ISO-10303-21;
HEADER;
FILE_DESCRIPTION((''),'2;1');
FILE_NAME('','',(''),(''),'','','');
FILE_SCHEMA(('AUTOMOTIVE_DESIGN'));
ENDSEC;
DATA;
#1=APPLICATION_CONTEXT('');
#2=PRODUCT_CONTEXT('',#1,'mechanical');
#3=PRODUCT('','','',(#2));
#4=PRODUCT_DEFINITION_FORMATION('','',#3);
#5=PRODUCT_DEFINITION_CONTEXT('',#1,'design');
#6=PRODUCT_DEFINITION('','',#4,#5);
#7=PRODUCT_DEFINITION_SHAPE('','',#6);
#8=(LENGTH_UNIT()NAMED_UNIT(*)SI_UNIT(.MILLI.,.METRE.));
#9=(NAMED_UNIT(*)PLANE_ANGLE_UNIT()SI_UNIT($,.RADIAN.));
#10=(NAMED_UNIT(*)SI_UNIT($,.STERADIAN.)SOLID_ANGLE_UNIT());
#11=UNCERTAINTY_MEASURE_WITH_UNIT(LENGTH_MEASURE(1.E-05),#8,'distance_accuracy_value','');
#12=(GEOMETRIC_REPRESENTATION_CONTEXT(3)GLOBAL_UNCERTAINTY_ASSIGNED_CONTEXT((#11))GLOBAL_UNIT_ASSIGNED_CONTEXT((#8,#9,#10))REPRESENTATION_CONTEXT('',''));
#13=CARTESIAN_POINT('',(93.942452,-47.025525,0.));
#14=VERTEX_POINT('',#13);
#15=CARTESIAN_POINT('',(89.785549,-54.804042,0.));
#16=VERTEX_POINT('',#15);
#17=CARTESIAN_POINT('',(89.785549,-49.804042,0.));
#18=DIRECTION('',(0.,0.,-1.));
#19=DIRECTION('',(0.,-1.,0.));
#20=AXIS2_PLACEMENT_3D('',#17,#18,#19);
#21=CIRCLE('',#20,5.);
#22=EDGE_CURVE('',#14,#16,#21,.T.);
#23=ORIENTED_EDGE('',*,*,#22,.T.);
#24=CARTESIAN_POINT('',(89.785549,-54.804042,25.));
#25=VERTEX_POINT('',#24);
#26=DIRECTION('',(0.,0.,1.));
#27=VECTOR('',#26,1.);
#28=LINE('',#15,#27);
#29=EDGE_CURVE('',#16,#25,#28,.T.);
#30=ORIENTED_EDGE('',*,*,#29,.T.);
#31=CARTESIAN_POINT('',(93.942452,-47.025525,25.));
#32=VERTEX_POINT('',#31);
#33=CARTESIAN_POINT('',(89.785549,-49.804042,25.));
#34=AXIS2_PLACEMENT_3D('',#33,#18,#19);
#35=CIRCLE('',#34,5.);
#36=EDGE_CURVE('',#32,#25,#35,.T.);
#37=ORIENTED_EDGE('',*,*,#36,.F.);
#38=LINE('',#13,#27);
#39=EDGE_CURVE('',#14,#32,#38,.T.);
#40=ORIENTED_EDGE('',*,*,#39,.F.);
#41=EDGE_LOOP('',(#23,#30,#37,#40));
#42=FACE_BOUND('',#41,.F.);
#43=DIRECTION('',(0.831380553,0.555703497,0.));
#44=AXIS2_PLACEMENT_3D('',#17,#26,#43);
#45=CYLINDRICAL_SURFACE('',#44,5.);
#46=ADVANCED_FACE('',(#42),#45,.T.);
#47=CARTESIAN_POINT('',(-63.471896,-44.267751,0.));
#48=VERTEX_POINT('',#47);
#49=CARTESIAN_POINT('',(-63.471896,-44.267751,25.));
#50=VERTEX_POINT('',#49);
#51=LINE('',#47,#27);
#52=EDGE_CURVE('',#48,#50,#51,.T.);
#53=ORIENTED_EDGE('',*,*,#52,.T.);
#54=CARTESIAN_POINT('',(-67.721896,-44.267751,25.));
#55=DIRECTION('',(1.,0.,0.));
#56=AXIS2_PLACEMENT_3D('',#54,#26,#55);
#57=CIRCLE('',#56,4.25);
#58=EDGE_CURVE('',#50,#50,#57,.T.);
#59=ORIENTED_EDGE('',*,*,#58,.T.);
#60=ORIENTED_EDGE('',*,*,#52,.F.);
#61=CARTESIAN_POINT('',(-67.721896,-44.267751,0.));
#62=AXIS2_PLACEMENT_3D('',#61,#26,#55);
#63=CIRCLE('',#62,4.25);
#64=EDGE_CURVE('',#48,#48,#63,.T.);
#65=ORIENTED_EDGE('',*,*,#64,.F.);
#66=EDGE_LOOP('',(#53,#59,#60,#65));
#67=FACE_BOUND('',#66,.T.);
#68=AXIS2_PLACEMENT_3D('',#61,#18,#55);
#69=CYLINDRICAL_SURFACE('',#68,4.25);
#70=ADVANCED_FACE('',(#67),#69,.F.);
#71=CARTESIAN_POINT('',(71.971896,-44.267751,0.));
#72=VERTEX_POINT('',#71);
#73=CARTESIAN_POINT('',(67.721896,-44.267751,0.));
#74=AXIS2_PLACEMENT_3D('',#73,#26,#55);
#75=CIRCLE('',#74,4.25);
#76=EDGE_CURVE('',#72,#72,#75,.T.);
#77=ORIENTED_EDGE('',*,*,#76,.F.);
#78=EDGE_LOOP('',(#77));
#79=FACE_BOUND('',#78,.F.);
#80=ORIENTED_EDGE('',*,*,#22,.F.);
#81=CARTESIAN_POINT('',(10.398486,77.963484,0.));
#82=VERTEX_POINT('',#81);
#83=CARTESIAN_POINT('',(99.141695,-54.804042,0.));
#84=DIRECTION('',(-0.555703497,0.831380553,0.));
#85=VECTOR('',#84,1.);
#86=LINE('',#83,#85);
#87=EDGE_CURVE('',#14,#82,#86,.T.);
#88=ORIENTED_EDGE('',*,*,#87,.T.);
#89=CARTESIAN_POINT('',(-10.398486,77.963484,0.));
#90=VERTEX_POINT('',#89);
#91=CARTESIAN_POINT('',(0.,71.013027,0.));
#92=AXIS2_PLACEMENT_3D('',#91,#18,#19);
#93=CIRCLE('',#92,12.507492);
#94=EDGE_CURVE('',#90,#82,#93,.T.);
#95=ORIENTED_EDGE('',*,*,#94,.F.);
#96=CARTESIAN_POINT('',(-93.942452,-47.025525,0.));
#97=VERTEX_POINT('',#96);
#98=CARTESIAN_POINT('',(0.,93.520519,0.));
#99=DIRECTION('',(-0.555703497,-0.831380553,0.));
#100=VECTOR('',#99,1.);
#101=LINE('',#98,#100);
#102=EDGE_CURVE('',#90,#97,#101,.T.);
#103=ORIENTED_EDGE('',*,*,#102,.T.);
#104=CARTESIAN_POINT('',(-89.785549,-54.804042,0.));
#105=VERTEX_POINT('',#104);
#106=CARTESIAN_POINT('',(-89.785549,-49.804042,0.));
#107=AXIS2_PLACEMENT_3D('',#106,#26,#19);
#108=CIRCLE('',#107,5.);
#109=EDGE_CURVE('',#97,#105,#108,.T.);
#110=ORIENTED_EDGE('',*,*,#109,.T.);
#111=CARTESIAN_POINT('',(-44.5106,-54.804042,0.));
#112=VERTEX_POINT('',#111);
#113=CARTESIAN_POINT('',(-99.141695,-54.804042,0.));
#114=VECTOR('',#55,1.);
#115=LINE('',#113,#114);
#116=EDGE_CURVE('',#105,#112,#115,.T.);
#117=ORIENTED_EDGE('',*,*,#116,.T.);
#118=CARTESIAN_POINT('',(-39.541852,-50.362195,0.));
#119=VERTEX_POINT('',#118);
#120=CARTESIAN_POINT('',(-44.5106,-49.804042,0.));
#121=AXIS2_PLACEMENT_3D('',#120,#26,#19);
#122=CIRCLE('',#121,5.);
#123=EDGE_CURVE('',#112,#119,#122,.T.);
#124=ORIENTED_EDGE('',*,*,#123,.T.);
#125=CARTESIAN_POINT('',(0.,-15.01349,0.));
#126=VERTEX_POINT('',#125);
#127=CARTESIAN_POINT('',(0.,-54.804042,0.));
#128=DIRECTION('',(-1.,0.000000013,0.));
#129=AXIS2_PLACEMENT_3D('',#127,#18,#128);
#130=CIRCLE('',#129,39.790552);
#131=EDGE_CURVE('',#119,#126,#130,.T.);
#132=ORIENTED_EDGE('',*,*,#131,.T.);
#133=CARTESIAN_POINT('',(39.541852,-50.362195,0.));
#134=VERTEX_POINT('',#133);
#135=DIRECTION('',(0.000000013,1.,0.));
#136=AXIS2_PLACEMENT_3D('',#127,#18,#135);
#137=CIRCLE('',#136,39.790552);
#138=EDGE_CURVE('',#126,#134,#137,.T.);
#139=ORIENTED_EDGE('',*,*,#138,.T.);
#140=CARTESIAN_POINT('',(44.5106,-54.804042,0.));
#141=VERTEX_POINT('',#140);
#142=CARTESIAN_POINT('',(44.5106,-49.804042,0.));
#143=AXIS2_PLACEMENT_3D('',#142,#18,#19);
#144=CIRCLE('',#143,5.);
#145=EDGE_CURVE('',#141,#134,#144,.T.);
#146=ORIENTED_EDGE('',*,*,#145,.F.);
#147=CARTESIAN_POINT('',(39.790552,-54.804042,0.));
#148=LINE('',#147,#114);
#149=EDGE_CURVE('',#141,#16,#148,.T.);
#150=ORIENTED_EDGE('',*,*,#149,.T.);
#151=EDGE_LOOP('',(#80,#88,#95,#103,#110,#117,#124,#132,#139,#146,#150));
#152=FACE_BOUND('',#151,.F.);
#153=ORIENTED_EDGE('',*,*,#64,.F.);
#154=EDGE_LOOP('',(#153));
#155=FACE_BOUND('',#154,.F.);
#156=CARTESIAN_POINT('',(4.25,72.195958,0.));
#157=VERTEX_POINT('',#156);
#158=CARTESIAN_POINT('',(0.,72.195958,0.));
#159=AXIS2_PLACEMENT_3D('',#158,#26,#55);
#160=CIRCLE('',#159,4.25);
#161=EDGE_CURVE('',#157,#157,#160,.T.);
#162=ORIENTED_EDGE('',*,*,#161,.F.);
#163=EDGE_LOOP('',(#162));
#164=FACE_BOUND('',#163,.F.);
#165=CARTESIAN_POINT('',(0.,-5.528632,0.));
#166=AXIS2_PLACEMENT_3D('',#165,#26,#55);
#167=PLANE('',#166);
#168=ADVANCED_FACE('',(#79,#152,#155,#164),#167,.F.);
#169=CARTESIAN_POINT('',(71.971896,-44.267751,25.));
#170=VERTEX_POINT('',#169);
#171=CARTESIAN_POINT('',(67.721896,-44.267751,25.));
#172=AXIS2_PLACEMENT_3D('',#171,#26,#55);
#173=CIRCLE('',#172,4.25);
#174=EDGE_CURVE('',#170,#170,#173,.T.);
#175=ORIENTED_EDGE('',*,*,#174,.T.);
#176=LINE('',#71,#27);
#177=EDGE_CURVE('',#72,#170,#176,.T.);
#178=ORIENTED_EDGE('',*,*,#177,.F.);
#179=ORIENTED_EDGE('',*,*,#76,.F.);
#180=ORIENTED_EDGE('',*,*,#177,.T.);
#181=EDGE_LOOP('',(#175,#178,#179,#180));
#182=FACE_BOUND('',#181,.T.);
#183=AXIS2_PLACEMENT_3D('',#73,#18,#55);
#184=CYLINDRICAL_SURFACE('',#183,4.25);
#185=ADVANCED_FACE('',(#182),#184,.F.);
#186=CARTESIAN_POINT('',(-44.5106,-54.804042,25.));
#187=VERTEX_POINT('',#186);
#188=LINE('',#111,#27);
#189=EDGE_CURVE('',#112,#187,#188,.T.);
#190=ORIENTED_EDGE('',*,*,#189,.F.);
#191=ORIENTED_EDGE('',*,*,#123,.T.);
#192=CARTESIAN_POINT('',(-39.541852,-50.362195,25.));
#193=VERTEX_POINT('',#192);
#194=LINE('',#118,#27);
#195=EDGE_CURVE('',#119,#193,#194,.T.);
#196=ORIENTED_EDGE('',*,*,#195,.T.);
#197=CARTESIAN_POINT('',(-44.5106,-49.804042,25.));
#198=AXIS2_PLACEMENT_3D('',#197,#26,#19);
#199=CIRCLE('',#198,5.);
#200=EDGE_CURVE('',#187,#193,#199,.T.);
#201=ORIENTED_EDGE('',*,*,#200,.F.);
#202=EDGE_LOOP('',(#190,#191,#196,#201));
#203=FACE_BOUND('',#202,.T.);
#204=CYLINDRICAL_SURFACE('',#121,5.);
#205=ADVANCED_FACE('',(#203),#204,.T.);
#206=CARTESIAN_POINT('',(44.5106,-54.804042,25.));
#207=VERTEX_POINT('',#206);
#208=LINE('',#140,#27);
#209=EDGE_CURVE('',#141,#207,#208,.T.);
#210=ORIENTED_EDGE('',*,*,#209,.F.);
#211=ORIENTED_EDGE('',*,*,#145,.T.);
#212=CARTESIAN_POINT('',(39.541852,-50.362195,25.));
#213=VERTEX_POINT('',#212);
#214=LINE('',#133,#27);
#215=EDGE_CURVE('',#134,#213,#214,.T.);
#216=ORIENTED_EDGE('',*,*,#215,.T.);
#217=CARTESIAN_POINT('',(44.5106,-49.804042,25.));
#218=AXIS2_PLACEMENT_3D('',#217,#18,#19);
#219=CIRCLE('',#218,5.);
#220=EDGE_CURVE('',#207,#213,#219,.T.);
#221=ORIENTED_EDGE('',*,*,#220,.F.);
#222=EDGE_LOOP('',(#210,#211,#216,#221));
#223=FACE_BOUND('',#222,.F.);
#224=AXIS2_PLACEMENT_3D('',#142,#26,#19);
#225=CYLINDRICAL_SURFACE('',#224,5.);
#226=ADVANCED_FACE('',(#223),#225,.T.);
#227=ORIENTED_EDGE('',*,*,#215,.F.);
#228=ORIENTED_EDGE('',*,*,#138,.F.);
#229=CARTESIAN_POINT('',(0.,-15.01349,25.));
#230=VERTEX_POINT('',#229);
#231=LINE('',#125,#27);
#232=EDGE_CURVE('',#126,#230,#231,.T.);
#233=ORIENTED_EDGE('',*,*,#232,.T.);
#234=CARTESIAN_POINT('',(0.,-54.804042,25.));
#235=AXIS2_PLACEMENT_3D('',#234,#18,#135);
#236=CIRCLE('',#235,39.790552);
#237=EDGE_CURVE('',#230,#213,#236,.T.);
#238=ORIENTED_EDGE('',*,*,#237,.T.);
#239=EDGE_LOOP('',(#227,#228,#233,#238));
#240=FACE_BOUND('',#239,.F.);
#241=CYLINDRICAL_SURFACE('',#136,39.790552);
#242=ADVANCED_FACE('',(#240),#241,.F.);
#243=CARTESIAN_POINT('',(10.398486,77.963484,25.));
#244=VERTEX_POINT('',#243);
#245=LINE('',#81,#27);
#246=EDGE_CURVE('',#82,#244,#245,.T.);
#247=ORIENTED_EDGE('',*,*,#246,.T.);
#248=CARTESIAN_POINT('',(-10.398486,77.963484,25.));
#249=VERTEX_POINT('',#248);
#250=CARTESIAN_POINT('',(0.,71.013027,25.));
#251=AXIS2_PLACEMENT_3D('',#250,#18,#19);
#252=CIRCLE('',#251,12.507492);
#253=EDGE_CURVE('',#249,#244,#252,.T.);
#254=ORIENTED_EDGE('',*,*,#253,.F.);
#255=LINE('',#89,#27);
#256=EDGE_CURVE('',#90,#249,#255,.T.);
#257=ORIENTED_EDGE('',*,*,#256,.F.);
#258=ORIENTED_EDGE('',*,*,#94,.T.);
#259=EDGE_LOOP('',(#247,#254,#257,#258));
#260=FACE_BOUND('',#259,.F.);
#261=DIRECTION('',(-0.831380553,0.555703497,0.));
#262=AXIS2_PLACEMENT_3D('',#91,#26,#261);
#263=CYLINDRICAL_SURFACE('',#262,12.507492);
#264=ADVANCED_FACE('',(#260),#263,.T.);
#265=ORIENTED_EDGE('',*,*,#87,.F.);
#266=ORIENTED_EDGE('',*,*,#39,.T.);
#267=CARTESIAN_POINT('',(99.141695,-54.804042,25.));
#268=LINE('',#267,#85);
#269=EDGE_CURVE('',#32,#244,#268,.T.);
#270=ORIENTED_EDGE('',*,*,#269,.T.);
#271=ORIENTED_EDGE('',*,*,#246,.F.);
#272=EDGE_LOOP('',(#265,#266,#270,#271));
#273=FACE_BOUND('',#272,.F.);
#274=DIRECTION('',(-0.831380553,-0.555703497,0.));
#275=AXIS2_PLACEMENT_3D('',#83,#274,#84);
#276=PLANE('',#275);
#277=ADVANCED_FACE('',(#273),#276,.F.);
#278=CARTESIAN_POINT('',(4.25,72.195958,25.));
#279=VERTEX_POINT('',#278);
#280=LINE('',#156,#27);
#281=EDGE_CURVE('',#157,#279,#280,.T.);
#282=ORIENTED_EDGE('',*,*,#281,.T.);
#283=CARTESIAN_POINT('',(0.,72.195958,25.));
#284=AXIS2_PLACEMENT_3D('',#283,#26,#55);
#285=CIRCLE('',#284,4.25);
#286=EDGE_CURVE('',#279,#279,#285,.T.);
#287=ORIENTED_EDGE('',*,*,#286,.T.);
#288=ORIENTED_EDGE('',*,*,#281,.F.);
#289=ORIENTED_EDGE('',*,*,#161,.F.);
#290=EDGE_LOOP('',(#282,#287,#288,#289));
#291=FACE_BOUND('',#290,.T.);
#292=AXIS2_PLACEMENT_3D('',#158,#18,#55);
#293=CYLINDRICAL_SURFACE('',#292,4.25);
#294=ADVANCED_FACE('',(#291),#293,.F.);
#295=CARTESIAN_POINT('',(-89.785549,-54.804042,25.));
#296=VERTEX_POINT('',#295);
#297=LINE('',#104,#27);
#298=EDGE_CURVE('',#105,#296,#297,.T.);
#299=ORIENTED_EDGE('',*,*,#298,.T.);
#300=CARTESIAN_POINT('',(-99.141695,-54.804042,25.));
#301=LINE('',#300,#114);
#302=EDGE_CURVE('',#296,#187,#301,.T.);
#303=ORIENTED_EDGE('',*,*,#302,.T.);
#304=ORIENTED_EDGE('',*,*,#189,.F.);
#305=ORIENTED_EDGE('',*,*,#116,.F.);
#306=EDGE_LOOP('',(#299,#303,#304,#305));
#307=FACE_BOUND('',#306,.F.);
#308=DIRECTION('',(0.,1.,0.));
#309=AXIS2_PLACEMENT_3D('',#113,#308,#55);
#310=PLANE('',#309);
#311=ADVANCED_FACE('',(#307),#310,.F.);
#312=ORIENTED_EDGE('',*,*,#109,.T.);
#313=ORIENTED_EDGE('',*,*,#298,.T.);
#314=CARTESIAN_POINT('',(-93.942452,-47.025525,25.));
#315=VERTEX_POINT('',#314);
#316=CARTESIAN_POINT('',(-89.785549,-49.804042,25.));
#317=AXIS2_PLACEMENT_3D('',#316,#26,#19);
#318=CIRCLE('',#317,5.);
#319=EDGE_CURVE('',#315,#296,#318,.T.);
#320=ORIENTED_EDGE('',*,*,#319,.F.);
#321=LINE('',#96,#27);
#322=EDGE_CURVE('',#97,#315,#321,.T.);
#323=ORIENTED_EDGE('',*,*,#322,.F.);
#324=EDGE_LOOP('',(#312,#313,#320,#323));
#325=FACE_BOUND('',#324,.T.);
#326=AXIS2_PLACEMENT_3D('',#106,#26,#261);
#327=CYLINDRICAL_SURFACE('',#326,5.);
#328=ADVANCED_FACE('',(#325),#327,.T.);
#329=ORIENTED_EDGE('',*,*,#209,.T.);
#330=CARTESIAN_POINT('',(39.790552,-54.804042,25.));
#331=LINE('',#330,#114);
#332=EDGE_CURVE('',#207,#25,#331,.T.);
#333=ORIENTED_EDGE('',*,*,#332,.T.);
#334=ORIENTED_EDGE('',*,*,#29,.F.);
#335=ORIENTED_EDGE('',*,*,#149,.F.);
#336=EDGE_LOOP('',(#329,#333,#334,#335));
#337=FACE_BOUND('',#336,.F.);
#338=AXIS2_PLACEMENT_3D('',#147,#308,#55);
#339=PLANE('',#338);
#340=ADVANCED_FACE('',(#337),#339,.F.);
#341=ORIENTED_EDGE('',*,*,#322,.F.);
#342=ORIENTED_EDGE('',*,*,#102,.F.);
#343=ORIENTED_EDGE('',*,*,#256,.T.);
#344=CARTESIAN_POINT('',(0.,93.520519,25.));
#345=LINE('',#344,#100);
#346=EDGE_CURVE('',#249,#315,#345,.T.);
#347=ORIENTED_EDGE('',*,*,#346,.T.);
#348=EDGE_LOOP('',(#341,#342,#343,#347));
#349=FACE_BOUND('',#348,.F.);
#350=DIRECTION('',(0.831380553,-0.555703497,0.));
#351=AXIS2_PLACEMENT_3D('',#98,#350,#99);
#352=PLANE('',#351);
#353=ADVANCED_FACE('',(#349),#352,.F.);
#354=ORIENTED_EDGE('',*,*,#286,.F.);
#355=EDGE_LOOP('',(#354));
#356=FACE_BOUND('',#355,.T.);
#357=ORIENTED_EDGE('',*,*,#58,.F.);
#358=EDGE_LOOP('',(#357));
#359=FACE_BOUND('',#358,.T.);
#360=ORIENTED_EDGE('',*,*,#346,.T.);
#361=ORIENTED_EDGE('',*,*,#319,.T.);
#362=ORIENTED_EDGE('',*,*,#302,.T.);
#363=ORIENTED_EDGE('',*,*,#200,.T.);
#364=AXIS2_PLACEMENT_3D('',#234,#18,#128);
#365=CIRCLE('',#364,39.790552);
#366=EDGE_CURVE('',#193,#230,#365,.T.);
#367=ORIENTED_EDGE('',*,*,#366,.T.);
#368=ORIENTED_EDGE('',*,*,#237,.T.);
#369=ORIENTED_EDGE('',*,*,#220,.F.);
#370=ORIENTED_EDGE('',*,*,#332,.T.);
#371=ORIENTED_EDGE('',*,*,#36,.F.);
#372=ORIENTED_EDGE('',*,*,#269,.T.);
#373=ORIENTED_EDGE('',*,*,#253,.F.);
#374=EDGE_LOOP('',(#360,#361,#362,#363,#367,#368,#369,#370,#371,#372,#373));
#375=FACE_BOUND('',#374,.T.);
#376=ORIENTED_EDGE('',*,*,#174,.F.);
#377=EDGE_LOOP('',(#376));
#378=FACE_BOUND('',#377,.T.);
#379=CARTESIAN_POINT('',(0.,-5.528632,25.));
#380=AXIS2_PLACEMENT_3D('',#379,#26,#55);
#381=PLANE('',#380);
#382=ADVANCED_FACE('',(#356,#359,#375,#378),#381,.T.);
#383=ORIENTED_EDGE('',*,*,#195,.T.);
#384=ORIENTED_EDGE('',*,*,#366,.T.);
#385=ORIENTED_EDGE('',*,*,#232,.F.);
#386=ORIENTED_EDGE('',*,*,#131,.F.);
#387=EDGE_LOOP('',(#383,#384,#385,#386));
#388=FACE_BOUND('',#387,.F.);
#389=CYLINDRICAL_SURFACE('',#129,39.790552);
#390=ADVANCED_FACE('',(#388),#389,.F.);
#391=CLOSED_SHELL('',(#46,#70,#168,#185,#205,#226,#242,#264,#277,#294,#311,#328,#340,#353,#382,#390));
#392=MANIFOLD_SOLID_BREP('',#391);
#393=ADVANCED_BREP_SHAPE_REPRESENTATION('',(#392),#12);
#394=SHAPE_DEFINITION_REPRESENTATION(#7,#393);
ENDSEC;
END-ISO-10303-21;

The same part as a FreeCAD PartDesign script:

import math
import FreeCAD as App
import Part
import Sketcher

V = App.Vector
Q = App.Units.Quantity


def edges_at(feature, points):
    """Names of the edges that pass closest to the given points."""
    edges = feature.Shape.Edges
    near = lambda p: min(range(len(edges)), key=lambda i: edges[i].distToShape(Part.Vertex(*p))[0])
    return sorted({f"Edge{near(p) + 1}" for p in points})

doc = App.newDocument("Part")
body = doc.addObject("PartDesign::Body", "Body")

# Sketch on XY plane
sketch1 = doc.addObject("Sketcher::SketchObject", "Sketch")
body.addObject(sketch1)
sketch1.AttachmentSupport = (doc.XY_Plane, [""])
sketch1.MapMode = "FlatFace"
sketch1.addGeometry(Part.LineSegment(V(0, 93.5, 0), V(-99.1, -54.8, 0)), False)
sketch1.addGeometry(Part.LineSegment(V(-99.1, -54.8, 0), V(-39.8, -54.8, 0)), False)
sketch1.addGeometry(Part.ArcOfCircle(Part.Circle(V(0, -54.8, 0), V(0, 0, 1), 39.8), math.radians(90), math.radians(180)), False)
sketch1.addGeometry(Part.ArcOfCircle(Part.Circle(V(0, -54.8, 0), V(0, 0, 1), 39.8), math.radians(0), math.radians(90)), False)
sketch1.addGeometry(Part.LineSegment(V(39.8, -54.8, 0), V(99.1, -54.8, 0)), False)
sketch1.addGeometry(Part.LineSegment(V(99.1, -54.8, 0), V(0, 93.5, 0)), False)
sketch1.addGeometry(Part.Circle(V(-67.7, -44.3, 0), V(0, 0, 1), 4.2), False)
sketch1.addGeometry(Part.Circle(V(67.7, -44.3, 0), V(0, 0, 1), 4.2), False)
sketch1.addGeometry(Part.Circle(V(0, 72.2, 0), V(0, 0, 1), 4.2), False)
sketch1.addConstraint(Sketcher.Constraint("Coincident", 0, 2, 1, 1))
sketch1.addConstraint(Sketcher.Constraint("Coincident", 1, 2, 2, 2))
sketch1.addConstraint(Sketcher.Constraint("Tangent", 2, 1, 3, 2))
sketch1.addConstraint(Sketcher.Constraint("Coincident", 3, 1, 4, 1))
sketch1.addConstraint(Sketcher.Constraint("Coincident", 4, 2, 5, 1))
sketch1.addConstraint(Sketcher.Constraint("Coincident", 5, 2, 0, 1))
sketch1.addConstraint(Sketcher.Constraint("Horizontal", 1))
sketch1.addConstraint(Sketcher.Constraint("Horizontal", 4))
sketch1.addConstraint(Sketcher.Constraint("Equal", 2, 3))
sketch1.addConstraint(Sketcher.Constraint("Equal", 6, 7))
sketch1.addConstraint(Sketcher.Constraint("Equal", 7, 8))
sketch1.addConstraint(Sketcher.Constraint("Symmetric", 6, 3, 7, 3, -2))
sketch1.addConstraint(Sketcher.Constraint("Symmetric", 1, 2, 3, 1, -2))
sketch1.addConstraint(Sketcher.Constraint("PointOnObject", 8, 3, -2))
sketch1.addConstraint(Sketcher.Constraint("PointOnObject", 2, 1, -2))
sketch1.addConstraint(Sketcher.Constraint("PointOnObject", 5, 2, -2))
sketch1.addConstraint(Sketcher.Constraint("Horizontal", 3, 3, 0, 2))
sketch1.addConstraint(Sketcher.Constraint("Equal", 1, 4))
sketch1.addConstraint(Sketcher.Constraint("Diameter", 6, Q("8.5 mm")))
sketch1.addConstraint(Sketcher.Constraint("DistanceY", 2, 3, 8, 3, Q("127 mm")))
sketch1.addConstraint(Sketcher.Constraint("Radius", 2, Q("39.790552 mm")))
sketch1.addConstraint(Sketcher.Constraint("DistanceX", 0, 2, 6, 3, Q("31.419799 mm")))
sketch1.addConstraint(Sketcher.Constraint("DistanceX", 1, 1, 1, 2, Q("59.351143 mm")))
sketch1.addConstraint(Sketcher.Constraint("DistanceY", 6, 3, -1, 1, Q("44.267751 mm")))
sketch1.addConstraint(Sketcher.Constraint("DistanceY", -1, 1, 8, 3, Q("72.195958 mm")))
sketch1.addConstraint(Sketcher.Constraint("DistanceY", -1, 1, 5, 2, Q("93.520519 mm")))
pad1 = doc.addObject("PartDesign::Pad", "Pad")
body.addObject(pad1)
pad1.Profile = sketch1
pad1.Length = 25
doc.recompute()

fillet = doc.addObject("PartDesign::Fillet", "Fillet")
body.addObject(fillet)
fillet.Base = (pad1, edges_at(pad1, [(0, 93.521, 12.5)]))
fillet.Radius = 12.507492
doc.recompute()

fillet2 = doc.addObject("PartDesign::Fillet", "Fillet001")
body.addObject(fillet2)
fillet2.Base = (fillet, edges_at(fillet, [
    (-39.791, -54.804, 12.5),
    (39.791, -54.804, 12.5),
    (99.142, -54.804, 12.5),
    (-99.142, -54.804, 12.5),
]))
fillet2.Radius = 5

doc.recompute()
